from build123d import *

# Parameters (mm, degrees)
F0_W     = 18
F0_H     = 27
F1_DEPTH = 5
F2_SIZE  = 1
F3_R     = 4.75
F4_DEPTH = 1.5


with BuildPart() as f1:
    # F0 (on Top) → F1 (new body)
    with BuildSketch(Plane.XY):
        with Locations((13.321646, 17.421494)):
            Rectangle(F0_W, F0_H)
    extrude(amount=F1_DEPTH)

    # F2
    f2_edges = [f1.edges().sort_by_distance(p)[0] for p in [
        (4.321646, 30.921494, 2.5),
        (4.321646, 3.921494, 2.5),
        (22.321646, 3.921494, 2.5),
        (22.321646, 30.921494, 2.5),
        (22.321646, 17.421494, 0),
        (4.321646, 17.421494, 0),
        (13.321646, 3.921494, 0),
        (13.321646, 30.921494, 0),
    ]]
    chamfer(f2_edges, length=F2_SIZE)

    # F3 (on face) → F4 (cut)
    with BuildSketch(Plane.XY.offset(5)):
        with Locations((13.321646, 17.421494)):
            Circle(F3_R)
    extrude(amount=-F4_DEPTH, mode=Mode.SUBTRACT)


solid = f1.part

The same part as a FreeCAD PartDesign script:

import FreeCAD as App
import Part
import Sketcher

V = App.Vector


def edges_at(feature, points):
    """Names of the edges that pass closest to the given points."""
    edges = feature.Shape.Edges
    near = lambda p: min(range(len(edges)), key=lambda i: edges[i].distToShape(Part.Vertex(*p))[0])
    return sorted({f"Edge{near(p) + 1}" for p in points})

doc = App.newDocument("Part")
body = doc.addObject("PartDesign::Body", "Body")

# Sketch on XY plane
sketch1 = body.newObject("Sketcher::SketchObject", "Sketch")
sketch1.AttachmentSupport = (doc.getObject("XY_Plane"), [""])
sketch1.MapMode = "FlatFace"
sketch1.addGeometry(Part.LineSegment(V(4, 31, 0), V(4, 4, 0)), False)
sketch1.addGeometry(Part.LineSegment(V(4, 4, 0), V(22, 4, 0)), False)
sketch1.addGeometry(Part.LineSegment(V(22, 4, 0), V(22, 31, 0)), False)
sketch1.addGeometry(Part.LineSegment(V(22, 31, 0), V(4, 31, 0)), False)
sketch1.addConstraint(Sketcher.Constraint("Coincident", 0, 2, 1, 1))
sketch1.addConstraint(Sketcher.Constraint("Coincident", 1, 2, 2, 1))
sketch1.addConstraint(Sketcher.Constraint("Coincident", 2, 2, 3, 1))
sketch1.addConstraint(Sketcher.Constraint("Coincident", 3, 2, 0, 1))
sketch1.addConstraint(Sketcher.Constraint("Vertical", 0))
sketch1.addConstraint(Sketcher.Constraint("Horizontal", 1))
sketch1.addConstraint(Sketcher.Constraint("Vertical", 2))
sketch1.addConstraint(Sketcher.Constraint("Horizontal", 3))
sketch1.addConstraint(Sketcher.Constraint("DistanceX", 1, 1, 1, 2, 18.0))
sketch1.addConstraint(Sketcher.Constraint("DistanceY", 0, 2, 0, 1, 27.0))
sketch1.addConstraint(Sketcher.Constraint("DistanceX", -1, 1, 0, 2, 4.321646))
sketch1.addConstraint(Sketcher.Constraint("DistanceY", -1, 1, 0, 2, 3.921494))
pad1 = body.newObject("PartDesign::Pad", "Pad")
pad1.Profile = sketch1
pad1.Length = 5
doc.recompute()

chamfer = body.newObject("PartDesign::Chamfer", "Chamfer")
chamfer.Base = (pad1, edges_at(pad1, [
    (4.322, 30.921, 2.5),
    (4.322, 3.921, 2.5),
    (22.322, 3.921, 2.5),
    (22.322, 30.921, 2.5),
    (22.322, 17.421, 0),
    (4.322, 17.421, 0),
    (13.322, 3.921, 0),
    (13.322, 30.921, 0),
]))
chamfer.Size = 1

# Sketch on XY plane
sketch2 = body.newObject("Sketcher::SketchObject", "Sketch001")
sketch2.AttachmentSupport = (doc.getObject("XY_Plane"), [""])
sketch2.MapMode = "FlatFace"
sketch2.AttachmentOffset = App.Placement(V(0, 0, 5), App.Rotation())
sketch2.addGeometry(Part.Circle(V(13.3, 17.4, 0), V(0, 0, 1), 4.8), False)
sketch2.addConstraint(Sketcher.Constraint("Diameter", 0, 9.5))
sketch2.addConstraint(Sketcher.Constraint("DistanceX", -1, 1, 0, 3, 13.321646))
sketch2.addConstraint(Sketcher.Constraint("DistanceY", -1, 1, 0, 3, 17.421494))
pocket1 = body.newObject("PartDesign::Pocket", "Pocket")
pocket1.Profile = sketch2
pocket1.Length = 1.5

doc.recompute()
